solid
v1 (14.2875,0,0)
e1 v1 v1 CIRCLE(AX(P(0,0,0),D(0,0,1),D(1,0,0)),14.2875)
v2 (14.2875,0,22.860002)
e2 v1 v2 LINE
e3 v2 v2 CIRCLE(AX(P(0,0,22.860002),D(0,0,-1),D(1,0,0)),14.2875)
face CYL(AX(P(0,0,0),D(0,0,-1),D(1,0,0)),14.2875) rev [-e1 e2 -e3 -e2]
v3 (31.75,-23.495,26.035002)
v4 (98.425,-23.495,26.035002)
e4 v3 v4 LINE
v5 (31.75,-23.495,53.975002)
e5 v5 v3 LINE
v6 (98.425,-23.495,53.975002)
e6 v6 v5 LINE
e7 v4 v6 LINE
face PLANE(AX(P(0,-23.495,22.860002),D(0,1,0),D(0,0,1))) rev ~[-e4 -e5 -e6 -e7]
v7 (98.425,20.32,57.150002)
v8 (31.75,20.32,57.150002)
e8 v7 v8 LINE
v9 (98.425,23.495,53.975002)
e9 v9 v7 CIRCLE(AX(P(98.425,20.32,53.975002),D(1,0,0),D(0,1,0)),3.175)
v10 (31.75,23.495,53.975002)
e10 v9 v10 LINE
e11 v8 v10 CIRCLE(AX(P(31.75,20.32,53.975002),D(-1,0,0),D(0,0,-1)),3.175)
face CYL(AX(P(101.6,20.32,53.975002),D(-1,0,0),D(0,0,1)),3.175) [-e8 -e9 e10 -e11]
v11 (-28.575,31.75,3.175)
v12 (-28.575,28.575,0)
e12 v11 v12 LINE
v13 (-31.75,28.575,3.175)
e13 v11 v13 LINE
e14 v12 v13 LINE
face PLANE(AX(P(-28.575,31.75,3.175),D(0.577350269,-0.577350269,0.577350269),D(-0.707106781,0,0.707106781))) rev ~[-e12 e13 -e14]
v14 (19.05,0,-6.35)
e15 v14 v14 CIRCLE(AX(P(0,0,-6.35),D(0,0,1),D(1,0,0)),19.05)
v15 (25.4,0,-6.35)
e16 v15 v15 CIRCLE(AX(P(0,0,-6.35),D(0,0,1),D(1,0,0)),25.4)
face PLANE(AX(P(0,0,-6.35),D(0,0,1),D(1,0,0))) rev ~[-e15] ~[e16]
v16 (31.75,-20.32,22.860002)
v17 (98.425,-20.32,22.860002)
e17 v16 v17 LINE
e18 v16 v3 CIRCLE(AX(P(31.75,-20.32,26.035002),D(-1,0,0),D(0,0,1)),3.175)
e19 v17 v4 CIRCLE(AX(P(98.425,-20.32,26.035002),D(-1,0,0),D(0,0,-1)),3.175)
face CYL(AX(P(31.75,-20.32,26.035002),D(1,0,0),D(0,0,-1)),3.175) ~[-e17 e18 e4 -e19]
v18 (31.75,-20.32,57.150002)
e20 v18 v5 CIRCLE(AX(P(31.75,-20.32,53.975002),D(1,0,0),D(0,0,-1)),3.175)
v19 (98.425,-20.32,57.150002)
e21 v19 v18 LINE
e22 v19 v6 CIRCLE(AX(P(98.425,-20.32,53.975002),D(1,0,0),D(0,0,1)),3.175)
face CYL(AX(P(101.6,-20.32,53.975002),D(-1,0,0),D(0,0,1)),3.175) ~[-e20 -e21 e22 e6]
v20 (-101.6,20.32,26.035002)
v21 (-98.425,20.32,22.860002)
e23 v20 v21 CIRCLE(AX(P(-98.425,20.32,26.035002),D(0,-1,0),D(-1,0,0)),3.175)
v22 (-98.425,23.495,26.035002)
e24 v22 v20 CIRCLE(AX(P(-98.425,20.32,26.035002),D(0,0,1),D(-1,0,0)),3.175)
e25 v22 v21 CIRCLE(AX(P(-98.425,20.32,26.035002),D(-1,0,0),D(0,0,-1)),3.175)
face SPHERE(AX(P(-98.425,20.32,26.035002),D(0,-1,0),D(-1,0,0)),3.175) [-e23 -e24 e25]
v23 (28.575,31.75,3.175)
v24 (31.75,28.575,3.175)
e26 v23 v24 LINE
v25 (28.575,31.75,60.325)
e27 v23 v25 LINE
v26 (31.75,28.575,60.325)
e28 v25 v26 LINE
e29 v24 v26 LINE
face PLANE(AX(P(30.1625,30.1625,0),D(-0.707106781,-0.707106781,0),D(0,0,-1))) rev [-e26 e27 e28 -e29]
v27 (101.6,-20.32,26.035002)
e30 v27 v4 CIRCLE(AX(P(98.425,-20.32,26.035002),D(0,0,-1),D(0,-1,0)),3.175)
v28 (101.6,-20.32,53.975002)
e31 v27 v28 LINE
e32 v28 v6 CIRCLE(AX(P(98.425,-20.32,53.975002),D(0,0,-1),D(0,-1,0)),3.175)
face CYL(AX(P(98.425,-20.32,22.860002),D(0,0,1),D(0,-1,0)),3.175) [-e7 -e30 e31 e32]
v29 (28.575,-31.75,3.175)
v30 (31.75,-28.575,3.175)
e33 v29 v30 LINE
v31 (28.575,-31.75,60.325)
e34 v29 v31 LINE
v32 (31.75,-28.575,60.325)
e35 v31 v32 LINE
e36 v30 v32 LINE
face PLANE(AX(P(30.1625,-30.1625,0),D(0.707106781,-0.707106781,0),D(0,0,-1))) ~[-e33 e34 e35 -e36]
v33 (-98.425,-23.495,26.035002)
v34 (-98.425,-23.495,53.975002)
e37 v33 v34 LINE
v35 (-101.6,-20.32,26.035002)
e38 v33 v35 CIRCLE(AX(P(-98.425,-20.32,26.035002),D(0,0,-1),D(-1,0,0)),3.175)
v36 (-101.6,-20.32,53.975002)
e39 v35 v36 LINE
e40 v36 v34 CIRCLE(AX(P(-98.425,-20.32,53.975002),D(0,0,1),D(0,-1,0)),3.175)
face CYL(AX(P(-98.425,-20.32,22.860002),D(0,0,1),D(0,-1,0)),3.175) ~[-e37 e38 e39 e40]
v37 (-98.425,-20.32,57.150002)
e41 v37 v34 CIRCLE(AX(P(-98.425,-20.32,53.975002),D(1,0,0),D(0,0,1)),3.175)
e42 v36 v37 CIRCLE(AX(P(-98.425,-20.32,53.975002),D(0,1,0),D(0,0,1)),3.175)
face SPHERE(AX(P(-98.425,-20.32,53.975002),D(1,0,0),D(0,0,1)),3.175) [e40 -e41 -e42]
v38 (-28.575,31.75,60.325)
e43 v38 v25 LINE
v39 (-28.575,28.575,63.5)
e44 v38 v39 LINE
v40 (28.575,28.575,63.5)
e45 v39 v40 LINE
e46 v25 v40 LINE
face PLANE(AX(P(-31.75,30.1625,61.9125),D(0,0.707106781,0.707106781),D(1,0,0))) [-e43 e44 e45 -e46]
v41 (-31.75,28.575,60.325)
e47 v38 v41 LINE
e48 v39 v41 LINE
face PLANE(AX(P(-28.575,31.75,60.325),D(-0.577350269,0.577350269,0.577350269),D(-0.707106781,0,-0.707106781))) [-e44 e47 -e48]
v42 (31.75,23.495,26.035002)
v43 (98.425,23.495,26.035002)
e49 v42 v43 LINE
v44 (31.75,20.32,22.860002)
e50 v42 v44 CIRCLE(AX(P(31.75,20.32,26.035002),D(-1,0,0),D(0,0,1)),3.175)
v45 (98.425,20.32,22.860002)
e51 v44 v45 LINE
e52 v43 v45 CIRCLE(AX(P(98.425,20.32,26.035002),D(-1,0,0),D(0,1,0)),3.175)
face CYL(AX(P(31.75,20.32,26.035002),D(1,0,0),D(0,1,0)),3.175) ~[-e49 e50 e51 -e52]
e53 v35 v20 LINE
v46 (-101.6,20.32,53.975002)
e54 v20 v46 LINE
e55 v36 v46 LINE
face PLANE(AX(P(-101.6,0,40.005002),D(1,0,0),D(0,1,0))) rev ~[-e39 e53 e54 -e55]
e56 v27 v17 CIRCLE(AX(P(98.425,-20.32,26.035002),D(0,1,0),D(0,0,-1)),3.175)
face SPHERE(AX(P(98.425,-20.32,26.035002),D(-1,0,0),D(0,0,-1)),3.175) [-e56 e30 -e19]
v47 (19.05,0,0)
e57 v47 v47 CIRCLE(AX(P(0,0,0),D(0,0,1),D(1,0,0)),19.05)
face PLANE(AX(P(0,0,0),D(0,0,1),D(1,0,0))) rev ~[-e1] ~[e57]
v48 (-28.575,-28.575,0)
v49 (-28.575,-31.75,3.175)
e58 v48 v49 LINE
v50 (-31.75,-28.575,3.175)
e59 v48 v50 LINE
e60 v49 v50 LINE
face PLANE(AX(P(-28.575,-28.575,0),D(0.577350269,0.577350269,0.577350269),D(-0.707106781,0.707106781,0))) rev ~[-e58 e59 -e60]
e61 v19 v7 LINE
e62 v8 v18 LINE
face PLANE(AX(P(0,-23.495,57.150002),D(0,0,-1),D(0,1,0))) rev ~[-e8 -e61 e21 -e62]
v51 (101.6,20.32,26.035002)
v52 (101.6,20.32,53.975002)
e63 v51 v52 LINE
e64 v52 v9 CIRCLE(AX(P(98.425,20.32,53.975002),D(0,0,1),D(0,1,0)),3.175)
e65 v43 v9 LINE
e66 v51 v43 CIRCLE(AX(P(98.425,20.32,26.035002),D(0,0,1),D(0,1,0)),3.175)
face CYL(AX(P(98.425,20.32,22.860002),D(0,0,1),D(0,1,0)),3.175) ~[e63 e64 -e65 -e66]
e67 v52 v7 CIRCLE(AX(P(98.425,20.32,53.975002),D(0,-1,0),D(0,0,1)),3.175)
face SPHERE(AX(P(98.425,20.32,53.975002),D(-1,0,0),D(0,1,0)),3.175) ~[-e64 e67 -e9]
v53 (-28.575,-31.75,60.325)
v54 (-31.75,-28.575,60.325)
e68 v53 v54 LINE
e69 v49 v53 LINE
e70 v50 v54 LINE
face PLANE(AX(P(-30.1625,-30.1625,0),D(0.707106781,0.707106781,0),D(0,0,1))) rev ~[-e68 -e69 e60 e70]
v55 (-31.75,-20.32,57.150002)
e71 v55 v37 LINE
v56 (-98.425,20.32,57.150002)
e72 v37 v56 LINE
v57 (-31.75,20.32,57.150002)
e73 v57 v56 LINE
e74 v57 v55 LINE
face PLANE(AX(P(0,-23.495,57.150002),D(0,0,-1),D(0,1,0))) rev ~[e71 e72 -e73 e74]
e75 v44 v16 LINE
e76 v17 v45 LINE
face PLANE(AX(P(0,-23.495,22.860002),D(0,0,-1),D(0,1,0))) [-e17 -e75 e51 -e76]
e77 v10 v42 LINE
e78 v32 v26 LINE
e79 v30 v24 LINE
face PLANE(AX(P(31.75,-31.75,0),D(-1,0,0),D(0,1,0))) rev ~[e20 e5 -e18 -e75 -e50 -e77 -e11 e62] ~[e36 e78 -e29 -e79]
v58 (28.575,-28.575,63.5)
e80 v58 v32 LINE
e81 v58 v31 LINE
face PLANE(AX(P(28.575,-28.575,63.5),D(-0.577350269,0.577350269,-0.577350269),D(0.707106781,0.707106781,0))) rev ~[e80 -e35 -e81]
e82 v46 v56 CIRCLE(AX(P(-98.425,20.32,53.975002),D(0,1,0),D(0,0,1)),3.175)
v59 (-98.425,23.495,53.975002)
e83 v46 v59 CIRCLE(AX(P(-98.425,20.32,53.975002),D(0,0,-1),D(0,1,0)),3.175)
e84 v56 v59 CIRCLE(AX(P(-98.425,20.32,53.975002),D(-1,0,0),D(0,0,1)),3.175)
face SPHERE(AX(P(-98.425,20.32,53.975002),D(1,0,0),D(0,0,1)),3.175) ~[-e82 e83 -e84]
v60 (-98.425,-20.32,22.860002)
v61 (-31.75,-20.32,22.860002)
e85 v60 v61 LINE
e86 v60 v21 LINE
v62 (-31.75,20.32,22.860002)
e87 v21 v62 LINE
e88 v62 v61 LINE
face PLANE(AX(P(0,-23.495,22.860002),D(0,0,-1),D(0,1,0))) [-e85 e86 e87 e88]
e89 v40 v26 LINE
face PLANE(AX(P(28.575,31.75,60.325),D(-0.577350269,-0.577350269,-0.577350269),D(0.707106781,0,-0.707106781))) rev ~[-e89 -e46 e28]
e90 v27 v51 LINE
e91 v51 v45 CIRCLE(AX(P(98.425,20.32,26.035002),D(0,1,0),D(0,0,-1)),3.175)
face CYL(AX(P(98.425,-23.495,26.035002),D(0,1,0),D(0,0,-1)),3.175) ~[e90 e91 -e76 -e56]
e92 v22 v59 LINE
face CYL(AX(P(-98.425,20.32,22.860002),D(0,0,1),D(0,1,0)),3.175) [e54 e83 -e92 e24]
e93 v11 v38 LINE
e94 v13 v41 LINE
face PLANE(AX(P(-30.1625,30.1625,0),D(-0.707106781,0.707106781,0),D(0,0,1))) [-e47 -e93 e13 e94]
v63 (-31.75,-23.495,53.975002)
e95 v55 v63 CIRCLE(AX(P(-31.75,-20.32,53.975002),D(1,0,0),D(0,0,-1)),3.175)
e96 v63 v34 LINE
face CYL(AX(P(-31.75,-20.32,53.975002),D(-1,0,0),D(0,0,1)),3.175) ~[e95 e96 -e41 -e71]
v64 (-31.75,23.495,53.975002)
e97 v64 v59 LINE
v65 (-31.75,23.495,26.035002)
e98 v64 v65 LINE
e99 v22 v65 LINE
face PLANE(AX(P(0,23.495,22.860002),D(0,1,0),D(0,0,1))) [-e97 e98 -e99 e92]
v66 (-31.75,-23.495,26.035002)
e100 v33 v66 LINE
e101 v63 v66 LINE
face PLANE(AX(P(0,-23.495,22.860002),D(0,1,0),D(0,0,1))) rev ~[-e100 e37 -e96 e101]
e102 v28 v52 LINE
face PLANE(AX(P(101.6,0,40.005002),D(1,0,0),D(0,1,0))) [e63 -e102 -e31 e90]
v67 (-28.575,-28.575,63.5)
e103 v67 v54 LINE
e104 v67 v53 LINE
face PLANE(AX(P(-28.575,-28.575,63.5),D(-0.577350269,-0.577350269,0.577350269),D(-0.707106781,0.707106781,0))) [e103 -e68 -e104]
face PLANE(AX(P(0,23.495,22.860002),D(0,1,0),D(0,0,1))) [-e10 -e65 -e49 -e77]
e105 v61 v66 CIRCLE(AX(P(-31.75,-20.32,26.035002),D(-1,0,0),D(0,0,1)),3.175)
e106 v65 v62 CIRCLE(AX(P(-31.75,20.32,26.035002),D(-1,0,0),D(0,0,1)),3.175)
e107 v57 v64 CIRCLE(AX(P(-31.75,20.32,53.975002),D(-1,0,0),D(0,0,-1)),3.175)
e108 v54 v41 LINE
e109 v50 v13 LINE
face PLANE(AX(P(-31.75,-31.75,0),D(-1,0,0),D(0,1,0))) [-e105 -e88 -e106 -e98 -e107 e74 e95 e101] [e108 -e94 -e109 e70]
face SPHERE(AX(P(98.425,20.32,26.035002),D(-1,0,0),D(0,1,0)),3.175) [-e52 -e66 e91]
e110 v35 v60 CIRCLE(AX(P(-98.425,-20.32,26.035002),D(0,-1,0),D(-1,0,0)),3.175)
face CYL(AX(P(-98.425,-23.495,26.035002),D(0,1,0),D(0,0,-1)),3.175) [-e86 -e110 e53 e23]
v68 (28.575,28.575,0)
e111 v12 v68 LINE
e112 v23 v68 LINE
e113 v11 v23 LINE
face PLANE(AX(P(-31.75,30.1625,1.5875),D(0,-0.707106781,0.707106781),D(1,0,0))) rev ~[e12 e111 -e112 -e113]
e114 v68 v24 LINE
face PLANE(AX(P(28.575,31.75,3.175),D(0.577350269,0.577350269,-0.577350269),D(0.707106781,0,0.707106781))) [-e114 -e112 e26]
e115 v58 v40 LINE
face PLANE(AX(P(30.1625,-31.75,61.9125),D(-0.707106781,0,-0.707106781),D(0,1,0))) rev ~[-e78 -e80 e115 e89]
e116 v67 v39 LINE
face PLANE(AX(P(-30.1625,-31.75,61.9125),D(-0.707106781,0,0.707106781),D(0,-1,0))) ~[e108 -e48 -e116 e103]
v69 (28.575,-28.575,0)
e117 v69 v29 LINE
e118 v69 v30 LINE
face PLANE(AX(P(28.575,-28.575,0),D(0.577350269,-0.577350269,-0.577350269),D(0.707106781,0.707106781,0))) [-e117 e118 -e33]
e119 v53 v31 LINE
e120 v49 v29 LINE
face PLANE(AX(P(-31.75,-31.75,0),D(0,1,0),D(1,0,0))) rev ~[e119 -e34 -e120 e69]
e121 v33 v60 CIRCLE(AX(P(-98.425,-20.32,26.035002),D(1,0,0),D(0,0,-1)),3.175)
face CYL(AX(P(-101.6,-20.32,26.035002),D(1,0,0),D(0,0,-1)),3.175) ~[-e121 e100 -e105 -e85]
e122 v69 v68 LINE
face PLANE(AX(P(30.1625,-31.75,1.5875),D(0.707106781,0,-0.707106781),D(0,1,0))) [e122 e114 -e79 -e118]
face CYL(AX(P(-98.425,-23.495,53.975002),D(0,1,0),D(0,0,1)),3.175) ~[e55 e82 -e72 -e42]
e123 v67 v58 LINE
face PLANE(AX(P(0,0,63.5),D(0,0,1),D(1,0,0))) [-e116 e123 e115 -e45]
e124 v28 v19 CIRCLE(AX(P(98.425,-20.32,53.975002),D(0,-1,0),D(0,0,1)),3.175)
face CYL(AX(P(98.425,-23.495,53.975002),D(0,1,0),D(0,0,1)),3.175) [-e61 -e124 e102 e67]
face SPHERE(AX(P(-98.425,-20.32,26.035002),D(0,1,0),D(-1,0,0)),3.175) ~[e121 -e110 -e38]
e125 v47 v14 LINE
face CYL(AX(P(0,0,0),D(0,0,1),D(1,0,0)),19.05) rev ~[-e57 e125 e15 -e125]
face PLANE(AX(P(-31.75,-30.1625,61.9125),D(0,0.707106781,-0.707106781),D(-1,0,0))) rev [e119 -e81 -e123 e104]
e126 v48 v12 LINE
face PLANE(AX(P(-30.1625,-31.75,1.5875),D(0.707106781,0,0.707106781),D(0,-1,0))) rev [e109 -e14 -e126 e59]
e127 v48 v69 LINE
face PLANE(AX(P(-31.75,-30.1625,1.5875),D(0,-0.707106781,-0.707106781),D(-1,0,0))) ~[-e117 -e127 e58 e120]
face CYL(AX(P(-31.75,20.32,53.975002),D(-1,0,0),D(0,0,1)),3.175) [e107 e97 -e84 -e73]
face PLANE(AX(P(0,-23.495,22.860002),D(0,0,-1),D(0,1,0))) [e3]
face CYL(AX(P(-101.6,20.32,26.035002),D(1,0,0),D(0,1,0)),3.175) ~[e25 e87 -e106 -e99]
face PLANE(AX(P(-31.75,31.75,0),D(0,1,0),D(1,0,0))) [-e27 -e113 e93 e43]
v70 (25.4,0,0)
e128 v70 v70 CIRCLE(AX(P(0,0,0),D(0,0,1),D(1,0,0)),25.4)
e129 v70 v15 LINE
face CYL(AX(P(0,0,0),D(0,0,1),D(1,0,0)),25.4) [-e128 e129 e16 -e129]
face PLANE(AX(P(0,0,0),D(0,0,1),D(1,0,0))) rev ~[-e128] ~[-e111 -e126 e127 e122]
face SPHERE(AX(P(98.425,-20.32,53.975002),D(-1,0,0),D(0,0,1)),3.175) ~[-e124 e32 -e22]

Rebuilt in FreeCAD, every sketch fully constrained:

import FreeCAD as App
import Part
import Sketcher

V = App.Vector
Q = App.Units.Quantity


def edges_at(feature, points):
    """Names of the edges that pass closest to the given points."""
    edges = feature.Shape.Edges
    near = lambda p: min(range(len(edges)), key=lambda i: edges[i].distToShape(Part.Vertex(*p))[0])
    return sorted({f"Edge{near(p) + 1}" for p in points})


def add_polygon(sketch, points):
    """Adds a closed chain of lines whose ends are joined by coincident constraints."""
    first, n = sketch.GeometryCount, len(points)
    for a, b in zip(points, points[1:] + points[:1]):
        sketch.addGeometry(Part.LineSegment(App.Vector(*a, 0), App.Vector(*b, 0)), False)
    for i in range(n):
        sketch.addConstraint(Sketcher.Constraint("Coincident", first + i, 2, first + (i + 1) % n, 1))

doc = App.newDocument("Part")
body = doc.addObject("PartDesign::Body", "Body")

# Sketch on XY plane
sketch1 = doc.addObject("Sketcher::SketchObject", "Sketch")
body.addObject(sketch1)
sketch1.AttachmentSupport = (doc.XY_Plane, [""])
sketch1.MapMode = "FlatFace"
add_polygon(sketch1, [(-32, 32), (-32, -32), (32, -32), (32, 32)])  # lines 0-3
sketch1.addConstraint(Sketcher.Constraint("Vertical", 0))
sketch1.addConstraint(Sketcher.Constraint("Horizontal", 1))
sketch1.addConstraint(Sketcher.Constraint("Vertical", 2))
sketch1.addConstraint(Sketcher.Constraint("Horizontal", 3))
sketch1.addConstraint(Sketcher.Constraint("Symmetric", 0, 2, 2, 2, -1, 1))
sketch1.addConstraint(Sketcher.Constraint("Equal", 3, 0))
sketch1.addConstraint(Sketcher.Constraint("DistanceX", 1, 1, 1, 2, Q("2.5 in")))
pad1 = doc.addObject("PartDesign::Pad", "Pad")
body.addObject(pad1)
pad1.Profile = sketch1
pad1.Length = Q("2.5 in")

# Sketch on XY plane
sketch2 = doc.addObject("Sketcher::SketchObject", "Sketch001")
body.addObject(sketch2)
sketch2.AttachmentSupport = (doc.XY_Plane, [""])
sketch2.MapMode = "FlatFace"
sketch2.addGeometry(Part.Circle(V(0, 0, 0), V(0, 0, 1), 14), False)
sketch2.addConstraint(Sketcher.Constraint("Coincident", 0, 3, -1, 1))
sketch2.addConstraint(Sketcher.Constraint("Diameter", 0, Q("1.125 in")))
pocket1 = doc.addObject("PartDesign::Pocket", "Pocket")
body.addObject(pocket1)
pocket1.Profile = sketch2
pocket1.Length = Q("2 in")
pocket1.Reversed = True

# Sketch on XY plane
sketch3 = doc.addObject("Sketcher::SketchObject", "Sketch002")
body.addObject(sketch3)
sketch3.AttachmentSupport = (doc.XY_Plane, [""])
sketch3.MapMode = "FlatFace"
sketch3.addGeometry(Part.Circle(V(0, 0, 0), V(0, 0, 1), 25), False)
sketch3.addGeometry(Part.Circle(V(0, 0, 0), V(0, 0, 1), 19), False)
sketch3.addConstraint(Sketcher.Constraint("Coincident", 0, 3, -1, 1))
sketch3.addConstraint(Sketcher.Constraint("Coincident", 1, 3, -1, 1))
sketch3.addConstraint(Sketcher.Constraint("Diameter", 0, Q("2 in")))
sketch3.addConstraint(Sketcher.Constraint("Diameter", 1, Q("1.5 in")))
pad2 = doc.addObject("PartDesign::Pad", "Pad001")
body.addObject(pad2)
pad2.Profile = sketch3
pad2.Length = Q("0.25 in")
pad2.Reversed = True

# Sketch on YZ plane
sketch4 = doc.addObject("Sketcher::SketchObject", "Sketch003")
body.addObject(sketch4)
sketch4.AttachmentSupport = (doc.YZ_Plane, [""])
sketch4.MapMode = "FlatFace"
add_polygon(sketch4, [(-23, 57), (-23, 23), (23, 23), (23, 57)])  # lines 0-3
sketch4.addConstraint(Sketcher.Constraint("Vertical", 0))
sketch4.addConstraint(Sketcher.Constraint("Horizontal", 1))
sketch4.addConstraint(Sketcher.Constraint("Vertical", 2))
sketch4.addConstraint(Sketcher.Constraint("Horizontal", 3))
sketch4.addConstraint(Sketcher.Constraint("DistanceX", 1, 1, 1, 2, Q("1.85 in")))
sketch4.addConstraint(Sketcher.Constraint("DistanceY", 0, 2, 0, 1, Q("1.35 in")))
sketch4.addConstraint(Sketcher.Constraint("DistanceY", -1, 1, 0, 2, Q("0.9000001 in")))
sketch4.addConstraint(Sketcher.Constraint("DistanceX", 0, 2, -1, 1, Q("0.925 in")))
pad3 = doc.addObject("PartDesign::Pad", "Pad002")
body.addObject(pad3)
pad3.Profile = sketch4
pad3.Length = Q("8 in")
pad3.Midplane = True
doc.recompute()

chamfer = doc.addObject("PartDesign::Chamfer", "Chamfer")
body.addObject(chamfer)
chamfer.Base = (pad3, edges_at(pad3, [
    (-31.75, -31.75, 31.75),
    (31.75, -31.75, 31.75),
    (0, -31.75, 0),
    (0, -31.75, 63.5),
    (31.75, 0, 63.5),
    (31.75, 0, 0),
    (-31.75, 0, 63.5),
    (0, 31.75, 63.5),
    (-31.75, 0, 0),
    (0, 31.75, 0),
    (-31.75, 31.75, 31.75),
    (31.75, 31.75, 31.75),
]))
chamfer.Size = Q("0.125 in")
doc.recompute()

fillet = doc.addObject("PartDesign::Fillet", "Fillet")
body.addObject(fillet)
fillet.Base = (chamfer, edges_at(chamfer, [
    (66.675, -23.495, 57.15),
    (-66.675, -23.495, 57.15),
    (66.675, 23.495, 57.15),
    (-66.675, 23.495, 57.15),
    (-101.6, 0, 57.15),
    (-101.6, 0, 22.86),
    (-101.6, -23.495, 40.005),
    (-101.6, 23.495, 40.005),
    (66.675, -23.495, 22.86),
    (-66.675, -23.495, 22.86),
    (66.675, 23.495, 22.86),
    (-66.675, 23.495, 22.86),
    (101.6, 23.495, 40.005),
    (101.6, 0, 57.15),
    (101.6, 0, 22.86),
    (101.6, -23.495, 40.005),
]))
fillet.Radius = Q("0.125 in")

doc.recompute()
